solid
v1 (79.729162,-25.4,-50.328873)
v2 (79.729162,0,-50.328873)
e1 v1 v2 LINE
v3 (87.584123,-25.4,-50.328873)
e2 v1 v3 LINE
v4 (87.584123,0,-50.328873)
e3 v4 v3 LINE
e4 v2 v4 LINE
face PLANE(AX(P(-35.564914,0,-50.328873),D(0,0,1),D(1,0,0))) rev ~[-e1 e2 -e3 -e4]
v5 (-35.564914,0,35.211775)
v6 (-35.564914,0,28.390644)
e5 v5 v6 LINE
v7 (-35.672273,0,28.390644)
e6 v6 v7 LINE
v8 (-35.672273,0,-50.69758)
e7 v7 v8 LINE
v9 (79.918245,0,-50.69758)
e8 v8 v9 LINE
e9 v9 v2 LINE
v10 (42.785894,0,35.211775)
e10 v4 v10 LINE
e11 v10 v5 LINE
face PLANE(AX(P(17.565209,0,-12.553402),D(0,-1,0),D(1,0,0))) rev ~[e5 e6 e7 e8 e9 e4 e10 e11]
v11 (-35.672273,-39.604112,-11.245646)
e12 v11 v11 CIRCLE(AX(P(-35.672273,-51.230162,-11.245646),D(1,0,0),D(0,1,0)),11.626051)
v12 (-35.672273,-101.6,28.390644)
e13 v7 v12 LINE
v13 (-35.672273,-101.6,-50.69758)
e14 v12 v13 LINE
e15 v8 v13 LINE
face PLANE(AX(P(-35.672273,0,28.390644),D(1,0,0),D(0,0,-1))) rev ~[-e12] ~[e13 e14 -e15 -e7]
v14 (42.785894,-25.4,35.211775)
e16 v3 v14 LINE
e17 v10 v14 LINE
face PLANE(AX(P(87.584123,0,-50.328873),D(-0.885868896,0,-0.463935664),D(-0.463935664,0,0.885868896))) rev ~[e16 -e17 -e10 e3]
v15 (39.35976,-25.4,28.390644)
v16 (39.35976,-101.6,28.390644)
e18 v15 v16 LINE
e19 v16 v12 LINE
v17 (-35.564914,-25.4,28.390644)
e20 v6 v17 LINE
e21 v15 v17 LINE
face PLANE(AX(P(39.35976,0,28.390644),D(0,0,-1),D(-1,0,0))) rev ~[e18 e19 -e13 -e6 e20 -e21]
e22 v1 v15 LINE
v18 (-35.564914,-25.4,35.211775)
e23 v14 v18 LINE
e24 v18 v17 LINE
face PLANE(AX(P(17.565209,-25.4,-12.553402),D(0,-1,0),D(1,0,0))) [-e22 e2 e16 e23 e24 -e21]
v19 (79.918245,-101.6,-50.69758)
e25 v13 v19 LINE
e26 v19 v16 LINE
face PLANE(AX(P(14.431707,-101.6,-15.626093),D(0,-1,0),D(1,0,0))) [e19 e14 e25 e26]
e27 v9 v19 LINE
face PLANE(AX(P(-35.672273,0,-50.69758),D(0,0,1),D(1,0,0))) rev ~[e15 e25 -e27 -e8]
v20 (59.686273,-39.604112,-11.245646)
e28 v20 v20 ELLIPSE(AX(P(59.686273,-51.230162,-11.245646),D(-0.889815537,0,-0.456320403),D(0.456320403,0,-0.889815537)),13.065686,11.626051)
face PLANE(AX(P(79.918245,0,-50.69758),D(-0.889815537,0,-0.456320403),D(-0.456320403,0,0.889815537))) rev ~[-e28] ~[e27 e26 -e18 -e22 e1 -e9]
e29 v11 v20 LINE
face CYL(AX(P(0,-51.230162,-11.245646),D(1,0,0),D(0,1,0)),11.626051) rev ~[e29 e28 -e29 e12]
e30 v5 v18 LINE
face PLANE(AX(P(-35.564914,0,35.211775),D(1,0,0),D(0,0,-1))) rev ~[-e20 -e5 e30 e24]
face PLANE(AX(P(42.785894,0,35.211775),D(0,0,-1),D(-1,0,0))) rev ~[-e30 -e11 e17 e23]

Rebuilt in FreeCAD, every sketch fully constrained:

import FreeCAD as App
import Part
import Sketcher

V = App.Vector
Q = App.Units.Quantity


def add_polygon(sketch, points):
    """Adds a closed chain of lines whose ends are joined by coincident constraints."""
    first, n = sketch.GeometryCount, len(points)
    for a, b in zip(points, points[1:] + points[:1]):
        sketch.addGeometry(Part.LineSegment(App.Vector(*a, 0), App.Vector(*b, 0)), False)
    for i in range(n):
        sketch.addConstraint(Sketcher.Constraint("Coincident", first + i, 2, first + (i + 1) % n, 1))

doc = App.newDocument("Part")
body = doc.addObject("PartDesign::Body", "Body")

# Sketch on XZ plane
sketch1 = body.newObject("Sketcher::SketchObject", "Sketch")
sketch1.AttachmentSupport = (doc.getObject("XZ_Plane"), [""])
sketch1.MapMode = "FlatFace"
add_polygon(sketch1, [(39, 28), (-36, 28), (-36, -51), (80, -51)])  # lines 0-3
sketch1.addConstraint([
    Sketcher.Constraint("Horizontal", 0),
    Sketcher.Constraint("Vertical", 1),
    Sketcher.Constraint("Horizontal", 2),
    Sketcher.Constraint("DistanceX", 2, 1, 2, 2, 115.590518),
    Sketcher.Constraint("DistanceX", 0, 2, 0, 1, 75.032033),
    Sketcher.Constraint("DistanceY", 1, 2, 1, 1, 79.088224),
    Sketcher.Constraint("DistanceY", 1, 2, -1, 1, 50.69758),
    Sketcher.Constraint("DistanceX", -1, 1, 3, 2, 39.35976),
])
pad1 = body.newObject("PartDesign::Pad", "Pad")
pad1.Profile = sketch1
pad1.Length = Q("4 in")

# Sketch on YZ plane
sketch2 = body.newObject("Sketcher::SketchObject", "Sketch001")
sketch2.AttachmentSupport = (doc.getObject("YZ_Plane"), [""])
sketch2.MapMode = "FlatFace"
sketch2.addGeometry(Part.Circle(V(-51, -11, 0), V(0, 0, 1), 12), False)
sketch2.addConstraint([
    Sketcher.Constraint("Diameter", 0, 23.252101),
    Sketcher.Constraint("DistanceX", 0, 3, -1, 1, 51.230162),
    Sketcher.Constraint("DistanceY", 0, 3, -1, 1, 11.245646),
])
pocket1 = body.newObject("PartDesign::Pocket", "Pocket")
pocket1.Profile = sketch2
pocket1.Length = Q("7 in")
pocket1.Midplane = True

# Sketch on XZ plane
sketch3 = body.newObject("Sketcher::SketchObject", "Sketch002")
sketch3.AttachmentSupport = (doc.getObject("XZ_Plane"), [""])
sketch3.MapMode = "FlatFace"
add_polygon(sketch3, [(-36, 35), (-36, -50), (88, -50), (43, 35)])  # lines 0-3
sketch3.addConstraint([
    Sketcher.Constraint("Vertical", 0),
    Sketcher.Constraint("Horizontal", 1),
    Sketcher.Constraint("Horizontal", 3),
    Sketcher.Constraint("DistanceX", 3, 2, 3, 1, 78.350808),
    Sketcher.Constraint("DistanceY", 0, 2, 0, 1, 85.540649),
    Sketcher.Constraint("DistanceX", 1, 1, 1, 2, 123.149037),
    Sketcher.Constraint("DistanceX", 0, 2, -1, 1, 35.564914),
    Sketcher.Constraint("DistanceY", 0, 2, -1, 1, 50.328873),
])
pad2 = body.newObject("PartDesign::Pad", "Pad001")
pad2.Profile = sketch3
pad2.Length = Q("1 in")

doc.recompute()
